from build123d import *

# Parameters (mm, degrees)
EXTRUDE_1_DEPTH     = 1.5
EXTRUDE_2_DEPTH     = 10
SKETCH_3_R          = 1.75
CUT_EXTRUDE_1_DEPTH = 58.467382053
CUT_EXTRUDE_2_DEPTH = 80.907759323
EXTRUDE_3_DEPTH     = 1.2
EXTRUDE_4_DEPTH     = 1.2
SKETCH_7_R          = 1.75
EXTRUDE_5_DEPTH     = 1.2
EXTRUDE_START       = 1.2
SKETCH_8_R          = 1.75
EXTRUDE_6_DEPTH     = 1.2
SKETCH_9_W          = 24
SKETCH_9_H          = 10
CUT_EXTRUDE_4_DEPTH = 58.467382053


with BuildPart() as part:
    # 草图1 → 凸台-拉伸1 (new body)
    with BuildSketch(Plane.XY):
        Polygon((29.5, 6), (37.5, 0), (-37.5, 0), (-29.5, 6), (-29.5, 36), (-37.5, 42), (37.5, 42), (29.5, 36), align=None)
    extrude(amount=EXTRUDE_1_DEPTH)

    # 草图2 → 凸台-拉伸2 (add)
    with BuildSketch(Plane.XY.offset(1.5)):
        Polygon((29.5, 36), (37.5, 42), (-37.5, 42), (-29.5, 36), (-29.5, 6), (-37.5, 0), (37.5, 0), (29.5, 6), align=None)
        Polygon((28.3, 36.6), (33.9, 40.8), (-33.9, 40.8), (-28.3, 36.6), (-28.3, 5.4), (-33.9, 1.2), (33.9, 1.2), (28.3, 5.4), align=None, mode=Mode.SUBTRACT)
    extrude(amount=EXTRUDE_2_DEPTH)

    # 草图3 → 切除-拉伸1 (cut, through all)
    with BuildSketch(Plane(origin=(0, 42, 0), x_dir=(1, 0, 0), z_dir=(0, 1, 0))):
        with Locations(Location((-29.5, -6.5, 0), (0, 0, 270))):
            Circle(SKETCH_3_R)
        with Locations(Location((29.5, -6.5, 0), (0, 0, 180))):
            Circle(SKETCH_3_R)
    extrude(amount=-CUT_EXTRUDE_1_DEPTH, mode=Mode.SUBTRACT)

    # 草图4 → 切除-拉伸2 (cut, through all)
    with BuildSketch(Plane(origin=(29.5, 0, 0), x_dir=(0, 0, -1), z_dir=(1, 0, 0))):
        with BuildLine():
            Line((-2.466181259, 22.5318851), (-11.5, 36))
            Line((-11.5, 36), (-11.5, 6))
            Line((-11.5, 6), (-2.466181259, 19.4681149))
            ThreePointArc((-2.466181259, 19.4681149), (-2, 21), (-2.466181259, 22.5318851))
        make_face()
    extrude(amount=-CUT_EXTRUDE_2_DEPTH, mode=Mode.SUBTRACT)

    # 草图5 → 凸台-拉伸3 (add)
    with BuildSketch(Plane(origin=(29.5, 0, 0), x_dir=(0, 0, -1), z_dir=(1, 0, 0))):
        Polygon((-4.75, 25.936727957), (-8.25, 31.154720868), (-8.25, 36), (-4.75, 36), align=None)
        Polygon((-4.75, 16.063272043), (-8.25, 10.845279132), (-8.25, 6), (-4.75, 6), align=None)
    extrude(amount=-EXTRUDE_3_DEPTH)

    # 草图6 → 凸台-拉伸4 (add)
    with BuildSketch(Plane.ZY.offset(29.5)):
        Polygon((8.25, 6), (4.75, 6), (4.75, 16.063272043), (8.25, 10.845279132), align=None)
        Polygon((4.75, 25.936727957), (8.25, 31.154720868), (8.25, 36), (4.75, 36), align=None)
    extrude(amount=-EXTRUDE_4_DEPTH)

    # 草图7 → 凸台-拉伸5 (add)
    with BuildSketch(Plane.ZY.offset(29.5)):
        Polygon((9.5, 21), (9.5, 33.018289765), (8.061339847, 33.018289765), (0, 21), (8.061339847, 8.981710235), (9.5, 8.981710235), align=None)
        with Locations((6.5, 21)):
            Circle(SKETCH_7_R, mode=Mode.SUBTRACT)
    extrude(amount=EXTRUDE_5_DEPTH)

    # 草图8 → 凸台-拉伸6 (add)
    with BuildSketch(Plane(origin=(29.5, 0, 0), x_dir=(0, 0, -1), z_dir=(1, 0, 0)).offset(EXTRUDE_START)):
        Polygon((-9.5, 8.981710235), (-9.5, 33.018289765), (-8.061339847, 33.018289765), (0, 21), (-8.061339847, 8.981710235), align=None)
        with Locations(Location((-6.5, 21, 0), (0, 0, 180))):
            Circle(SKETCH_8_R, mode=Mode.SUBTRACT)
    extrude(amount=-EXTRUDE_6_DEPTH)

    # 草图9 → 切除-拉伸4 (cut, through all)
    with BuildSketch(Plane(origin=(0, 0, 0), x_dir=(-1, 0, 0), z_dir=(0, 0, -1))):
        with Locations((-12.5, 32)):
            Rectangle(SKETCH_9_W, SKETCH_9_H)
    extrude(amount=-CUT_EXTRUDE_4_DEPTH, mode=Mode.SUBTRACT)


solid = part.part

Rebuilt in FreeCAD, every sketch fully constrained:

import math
import FreeCAD as App
import Part
import Sketcher
from FreeCAD import Vector


def add_polygon(sketch, points):
    """Adds a closed chain of lines whose ends are joined by coincident constraints."""
    first, n = sketch.GeometryCount, len(points)
    for a, b in zip(points, points[1:] + points[:1]):
        sketch.addGeometry(Part.LineSegment(App.Vector(*a, 0), App.Vector(*b, 0)), False)
    for i in range(n):
        sketch.addConstraint(Sketcher.Constraint("Coincident", first + i, 2, first + (i + 1) % n, 1))

doc = App.newDocument("Part")
body = doc.addObject("PartDesign::Body", "Body")

# Sketch on XY plane
sketch1 = body.newObject("Sketcher::SketchObject", "Sketch")
sketch1.AttachmentSupport = (doc.getObject("XY_Plane"), [""])
sketch1.MapMode = "FlatFace"
add_polygon(sketch1, [(38, 0), (30, 6), (30, 36), (38, 42), (-38, 42), (-30, 36), (-30, 6), (-38, 0)])  # lines 0-7
sketch1.addConstraint([
    Sketcher.Constraint("Vertical", 1),
    Sketcher.Constraint("Horizontal", 3),
    Sketcher.Constraint("Vertical", 5),
    Sketcher.Constraint("Horizontal", 7),
    Sketcher.Constraint("Symmetric", 6, 2, 7, 2, -1, 1),
    Sketcher.Constraint("Symmetric", 1, 2, 4, 2, -2),
    Sketcher.Constraint("Parallel", 0, 4),
    Sketcher.Constraint("Parallel", 2, 6),
    Sketcher.Constraint("Horizontal", 0, 2, 5, 2),
    Sketcher.Constraint("Vertical", 3, 2, 6, 2),
    Sketcher.Constraint("DistanceX", 3, 2, 3, 1, 75.0),
    Sketcher.Constraint("DistanceY", 1, 1, 1, 2, 30.0),
    Sketcher.Constraint("Distance", 0, 10.0),
    Sketcher.Constraint("DistanceY", -1, 1, 0, 2, 6.0),
])
pad1 = body.newObject("PartDesign::Pad", "Pad")
pad1.Profile = sketch1
pad1.Length = 1.5

# Sketch on XY plane
sketch2 = body.newObject("Sketcher::SketchObject", "Sketch001")
sketch2.AttachmentSupport = (doc.getObject("XY_Plane"), [""])
sketch2.MapMode = "FlatFace"
sketch2.AttachmentOffset = App.Placement(Vector(0, 0, 1.5), App.Rotation())
add_polygon(sketch2, [(30, 36), (38, 42), (-38, 42), (-30, 36), (-30, 6), (-38, 0), (38, 0), (30, 6)])  # lines 0-7
add_polygon(sketch2, [(34, 41), (28, 37), (28, 5), (34, 1), (-34, 1), (-28, 5), (-28, 37), (-34, 41)])  # lines 8-15
sketch2.addConstraint([
    Sketcher.Constraint("Horizontal", 1),
    Sketcher.Constraint("Vertical", 3),
    Sketcher.Constraint("Horizontal", 5),
    Sketcher.Constraint("Vertical", 7),
    Sketcher.Constraint("Vertical", 9),
    Sketcher.Constraint("Horizontal", 11),
    Sketcher.Constraint("Vertical", 13),
    Sketcher.Constraint("Horizontal", 15),
    Sketcher.Constraint("Symmetric", 4, 2, 5, 2, -1, 1),
    Sketcher.Constraint("Symmetric", 3, 2, 6, 2, -2),
    Sketcher.Constraint("Symmetric", 9, 2, 12, 2, -2),
    Sketcher.Constraint("Parallel", 0, 4),
    Sketcher.Constraint("Parallel", 2, 6),
    Sketcher.Constraint("Parallel", 4, 8),
    Sketcher.Constraint("Parallel", 6, 10),
    Sketcher.Constraint("Parallel", 8, 12),
    Sketcher.Constraint("Parallel", 10, 14),
    Sketcher.Constraint("Horizontal", 2, 2, 7, 2),
    Sketcher.Constraint("Horizontal", 8, 2, 13, 2),
    Sketcher.Constraint("Vertical", 1, 2, 4, 2),
    Sketcher.Constraint("Vertical", 11, 2, 14, 2),
    Sketcher.Constraint("DistanceX", 1, 2, 1, 1, 75.0),
    Sketcher.Constraint("DistanceY", 3, 2, 3, 1, 30.0),
    Sketcher.Constraint("Distance", 0, 10.0),
    Sketcher.Constraint("Distance", 8, 7.0),
    Sketcher.Constraint("DistanceX", 11, 2, 11, 1, 67.8),
    Sketcher.Constraint("DistanceY", 9, 2, 9, 1, 31.2),
    Sketcher.Constraint("DistanceY", -1, 1, 0, 2, 42.0),
    Sketcher.Constraint("DistanceY", -1, 1, 8, 2, 36.6),
])
pad2 = body.newObject("PartDesign::Pad", "Pad001")
pad2.Profile = sketch2
pad2.Length = 10

# Sketch on XZ plane
sketch3 = body.newObject("Sketcher::SketchObject", "Sketch002")
sketch3.AttachmentSupport = (doc.getObject("XZ_Plane"), [""])
sketch3.MapMode = "FlatFace"
sketch3.AttachmentOffset = App.Placement(Vector(0, 0, -42), App.Rotation())
sketch3.addGeometry([
    Part.Circle(Vector(-29.5, 6.5, 0), Vector(0, 0, 1), 1.8),
    Part.Circle(Vector(29.5, 6.5, 0), Vector(0, 0, 1), 1.8),
], False)
sketch3.addConstraint([
    Sketcher.Constraint("Equal", 0, 1),
    Sketcher.Constraint("Symmetric", 0, 3, 1, 3, -2),
    Sketcher.Constraint("Diameter", 0, 3.5),
    Sketcher.Constraint("DistanceX", 0, 3, 1, 3, 59.0),
    Sketcher.Constraint("DistanceY", -1, 1, 0, 3, 6.5),
])
pocket1 = body.newObject("PartDesign::Pocket", "Pocket")
pocket1.Profile = sketch3
pocket1.Type = "ThroughAll"
pocket1.Reversed = True

# Sketch on YZ plane
sketch4 = body.newObject("Sketcher::SketchObject", "Sketch003")
sketch4.AttachmentSupport = (doc.getObject("YZ_Plane"), [""])
sketch4.MapMode = "FlatFace"
sketch4.AttachmentOffset = App.Placement(Vector(0, 0, 29.5), App.Rotation())
sketch4.addGeometry([
    Part.LineSegment(Vector(22.5, 2.5, 0), Vector(36, 11.5, 0)),
    Part.LineSegment(Vector(36, 11.5, 0), Vector(6, 11.5, 0)),
    Part.LineSegment(Vector(6, 11.5, 0), Vector(19.5, 2.5, 0)),
    Part.ArcOfCircle(Part.Circle(Vector(21, 4.8, 0), Vector(0, 0, 1), 2.8), math.radians(-124), math.radians(-56)),
], False)
sketch4.addConstraint([
    Sketcher.Constraint("Coincident", 0, 2, 1, 1),
    Sketcher.Constraint("Coincident", 1, 2, 2, 1),
    Sketcher.Constraint("Tangent", 2, 2, 3, 1),
    Sketcher.Constraint("Tangent", 3, 2, 0, 1),
    Sketcher.Constraint("Horizontal", 1),
    Sketcher.Constraint("Horizontal", 2, 2, 3, 2),
    Sketcher.Constraint("DistanceX", 1, 2, 1, 1, 30.0),
    Sketcher.Constraint("Radius", 3, 2.75),
    Sketcher.Constraint("DistanceX", -1, 1, 3, 3, 21.0),
    Sketcher.Constraint("DistanceY", -1, 1, 0, 2, 11.5),
    Sketcher.Constraint("DistanceY", -1, 1, 3, 3, 4.75),
])
pocket2 = body.newObject("PartDesign::Pocket", "Pocket001")
pocket2.Profile = sketch4
pocket2.Type = "ThroughAll"

# Sketch on YZ plane
sketch5 = body.newObject("Sketcher::SketchObject", "Sketch004")
sketch5.AttachmentSupport = (doc.getObject("YZ_Plane"), [""])
sketch5.MapMode = "FlatFace"
sketch5.AttachmentOffset = App.Placement(Vector(0, 0, 29.5), App.Rotation())
add_polygon(sketch5, [(31.2, 8.2), (25.9, 4.8), (36, 4.8), (36, 8.2)])  # lines 0-3
add_polygon(sketch5, [(16.1, 4.8), (10.8, 8.2), (6, 8.2), (6, 4.8)])  # lines 4-7
sketch5.addConstraint([
    Sketcher.Constraint("Horizontal", 1),
    Sketcher.Constraint("Vertical", 2),
    Sketcher.Constraint("Horizontal", 3),
    Sketcher.Constraint("Horizontal", 5),
    Sketcher.Constraint("Vertical", 6),
    Sketcher.Constraint("Horizontal", 7),
    Sketcher.Constraint("Horizontal", 3, 2, 4, 2),
    Sketcher.Constraint("Horizontal", 1, 2, 6, 2),
    Sketcher.Constraint("Equal", 3, 5),
    Sketcher.Constraint("Equal", 1, 7),
    Sketcher.Constraint("DistanceY", 2, 1, 2, 2, 3.5),
    Sketcher.Constraint("DistanceX", -1, 1, 1, 2, 36.0),
    Sketcher.Constraint("DistanceX", -1, 1, 5, 2, 6.0),
    Sketcher.Constraint("DistanceY", -1, 1, 0, 2, 4.75),
    Sketcher.Constraint("DistanceX", 3, 2, 3, 1, 4.845279),
    Sketcher.Constraint("Distance", 0, 6.283108),
])
pad3 = body.newObject("PartDesign::Pad", "Pad002")
pad3.Profile = sketch5
pad3.Length = 1.2
pad3.Reversed = True

# Sketch on YZ plane
sketch6 = body.newObject("Sketcher::SketchObject", "Sketch005")
sketch6.AttachmentSupport = (doc.getObject("YZ_Plane"), [""])
sketch6.MapMode = "FlatFace"
sketch6.AttachmentOffset = App.Placement(Vector(0, 0, -29.5), App.Rotation())
add_polygon(sketch6, [(6, 4.8), (6, 8.2), (10.8, 8.2), (16.1, 4.8)])  # lines 0-3
add_polygon(sketch6, [(25.9, 4.8), (31.2, 8.2), (36, 8.2), (36, 4.8)])  # lines 4-7
sketch6.addConstraint([
    Sketcher.Constraint("Vertical", 0),
    Sketcher.Constraint("Horizontal", 1),
    Sketcher.Constraint("Horizontal", 3),
    Sketcher.Constraint("Horizontal", 5),
    Sketcher.Constraint("Vertical", 6),
    Sketcher.Constraint("Horizontal", 7),
    Sketcher.Constraint("Horizontal", 1, 2, 4, 2),
    Sketcher.Constraint("Horizontal", 3, 2, 6, 2),
    Sketcher.Constraint("Equal", 1, 5),
    Sketcher.Constraint("Equal", 3, 7),
    Sketcher.Constraint("DistanceY", 0, 1, 0, 2, 3.5),
    Sketcher.Constraint("DistanceX", -1, 1, 0, 2, 6.0),
    Sketcher.Constraint("DistanceX", -1, 1, 5, 2, 36.0),
    Sketcher.Constraint("DistanceY", -1, 1, 0, 2, 8.25),
    Sketcher.Constraint("DistanceX", 1, 1, 1, 2, 4.845279),
    Sketcher.Constraint("Distance", 2, 6.283108),
])
pad4 = body.newObject("PartDesign::Pad", "Pad003")
pad4.Profile = sketch6
pad4.Length = 1.2

# Sketch on YZ plane
sketch7 = body.newObject("Sketcher::SketchObject", "Sketch006")
sketch7.AttachmentSupport = (doc.getObject("YZ_Plane"), [""])
sketch7.MapMode = "FlatFace"
sketch7.AttachmentOffset = App.Placement(Vector(0, 0, -29.5), App.Rotation())
add_polygon(sketch7, [(33, 9.5), (33, 8.1), (21, 0), (9, 8.1), (9, 9.5)])  # lines 0-4
sketch7.addGeometry(Part.Circle(Vector(21, 6.5, 0), Vector(0, 0, 1), 1.8), False)  # 5
sketch7.addConstraint([
    Sketcher.Constraint("Vertical", 0),
    Sketcher.Constraint("Vertical", 3),
    Sketcher.Constraint("Horizontal", 4),
    Sketcher.Constraint("PointOnObject", 1, 2, -1),
    Sketcher.Constraint("Horizontal", 0, 2, 2, 2),
    Sketcher.Constraint("Vertical", 5, 3, 1, 2),
    Sketcher.Constraint("Equal", 1, 2),
    Sketcher.Constraint("Diameter", 5, 3.5),
    Sketcher.Constraint("DistanceX", -1, 1, 5, 3, 21.0),
    Sketcher.Constraint("DistanceY", 5, 3, 3, 2, 3.0),
    Sketcher.Constraint("DistanceY", -1, 1, 5, 3, 6.5),
    Sketcher.Constraint("DistanceX", 4, 1, 4, 2, 24.03658),
    Sketcher.Constraint("DistanceY", 0, 2, 0, 1, 1.43866),
])
pad5 = body.newObject("PartDesign::Pad", "Pad004")
pad5.Profile = sketch7
pad5.Length = 1.2
pad5.Reversed = True

# Sketch on YZ plane
sketch8 = body.newObject("Sketcher::SketchObject", "Sketch007")
sketch8.AttachmentSupport = (doc.getObject("YZ_Plane"), [""])
sketch8.MapMode = "FlatFace"
sketch8.AttachmentOffset = App.Placement(Vector(0, 0, 30.7), App.Rotation())
add_polygon(sketch8, [(33, 9.5), (9, 9.5), (9, 8.1), (21, 0), (33, 8.1)])  # lines 0-4
sketch8.addGeometry(Part.Circle(Vector(21, 6.5, 0), Vector(0, 0, 1), 1.8), False)  # 5
sketch8.addConstraint([
    Sketcher.Constraint("Horizontal", 0),
    Sketcher.Constraint("Vertical", 1),
    Sketcher.Constraint("Vertical", 4),
    Sketcher.Constraint("PointOnObject", 2, 2, -1),
    Sketcher.Constraint("Horizontal", 1, 2, 3, 2),
    Sketcher.Constraint("Vertical", 5, 3, 2, 2),
    Sketcher.Constraint("Equal", 2, 3),
    Sketcher.Constraint("Diameter", 5, 3.5),
    Sketcher.Constraint("DistanceX", -1, 1, 5, 3, 21.0),
    Sketcher.Constraint("DistanceY", 5, 3, 0, 2, 3.0),
    Sketcher.Constraint("DistanceY", -1, 1, 5, 3, 6.5),
    Sketcher.Constraint("DistanceX", 0, 2, 0, 1, 24.03658),
    Sketcher.Constraint("DistanceY", 1, 2, 1, 1, 1.43866),
])
pad6 = body.newObject("PartDesign::Pad", "Pad005")
pad6.Profile = sketch8
pad6.Length = 1.2
pad6.Reversed = True

# Sketch on XY plane
sketch9 = body.newObject("Sketcher::SketchObject", "Sketch008")
sketch9.AttachmentSupport = (doc.getObject("XY_Plane"), [""])
sketch9.MapMode = "FlatFace"
add_polygon(sketch9, [(24, 37), (24, 27), (0, 27), (0, 37)])  # lines 0-3
sketch9.addConstraint([
    Sketcher.Constraint("Vertical", 0),
    Sketcher.Constraint("Horizontal", 1),
    Sketcher.Constraint("Vertical", 2),
    Sketcher.Constraint("Horizontal", 3),
    Sketcher.Constraint("DistanceX", 1, 2, 1, 1, 24.0),
    Sketcher.Constraint("DistanceY", 0, 2, 0, 1, 10.0),
    Sketcher.Constraint("DistanceY", -1, 1, 0, 2, 27.0),
    Sketcher.Constraint("DistanceX", -1, 1, 0, 2, 24.5),
])
pocket3 = body.newObject("PartDesign::Pocket", "Pocket002")
pocket3.Profile = sketch9
pocket3.Type = "ThroughAll"
pocket3.Reversed = True

doc.recompute()
